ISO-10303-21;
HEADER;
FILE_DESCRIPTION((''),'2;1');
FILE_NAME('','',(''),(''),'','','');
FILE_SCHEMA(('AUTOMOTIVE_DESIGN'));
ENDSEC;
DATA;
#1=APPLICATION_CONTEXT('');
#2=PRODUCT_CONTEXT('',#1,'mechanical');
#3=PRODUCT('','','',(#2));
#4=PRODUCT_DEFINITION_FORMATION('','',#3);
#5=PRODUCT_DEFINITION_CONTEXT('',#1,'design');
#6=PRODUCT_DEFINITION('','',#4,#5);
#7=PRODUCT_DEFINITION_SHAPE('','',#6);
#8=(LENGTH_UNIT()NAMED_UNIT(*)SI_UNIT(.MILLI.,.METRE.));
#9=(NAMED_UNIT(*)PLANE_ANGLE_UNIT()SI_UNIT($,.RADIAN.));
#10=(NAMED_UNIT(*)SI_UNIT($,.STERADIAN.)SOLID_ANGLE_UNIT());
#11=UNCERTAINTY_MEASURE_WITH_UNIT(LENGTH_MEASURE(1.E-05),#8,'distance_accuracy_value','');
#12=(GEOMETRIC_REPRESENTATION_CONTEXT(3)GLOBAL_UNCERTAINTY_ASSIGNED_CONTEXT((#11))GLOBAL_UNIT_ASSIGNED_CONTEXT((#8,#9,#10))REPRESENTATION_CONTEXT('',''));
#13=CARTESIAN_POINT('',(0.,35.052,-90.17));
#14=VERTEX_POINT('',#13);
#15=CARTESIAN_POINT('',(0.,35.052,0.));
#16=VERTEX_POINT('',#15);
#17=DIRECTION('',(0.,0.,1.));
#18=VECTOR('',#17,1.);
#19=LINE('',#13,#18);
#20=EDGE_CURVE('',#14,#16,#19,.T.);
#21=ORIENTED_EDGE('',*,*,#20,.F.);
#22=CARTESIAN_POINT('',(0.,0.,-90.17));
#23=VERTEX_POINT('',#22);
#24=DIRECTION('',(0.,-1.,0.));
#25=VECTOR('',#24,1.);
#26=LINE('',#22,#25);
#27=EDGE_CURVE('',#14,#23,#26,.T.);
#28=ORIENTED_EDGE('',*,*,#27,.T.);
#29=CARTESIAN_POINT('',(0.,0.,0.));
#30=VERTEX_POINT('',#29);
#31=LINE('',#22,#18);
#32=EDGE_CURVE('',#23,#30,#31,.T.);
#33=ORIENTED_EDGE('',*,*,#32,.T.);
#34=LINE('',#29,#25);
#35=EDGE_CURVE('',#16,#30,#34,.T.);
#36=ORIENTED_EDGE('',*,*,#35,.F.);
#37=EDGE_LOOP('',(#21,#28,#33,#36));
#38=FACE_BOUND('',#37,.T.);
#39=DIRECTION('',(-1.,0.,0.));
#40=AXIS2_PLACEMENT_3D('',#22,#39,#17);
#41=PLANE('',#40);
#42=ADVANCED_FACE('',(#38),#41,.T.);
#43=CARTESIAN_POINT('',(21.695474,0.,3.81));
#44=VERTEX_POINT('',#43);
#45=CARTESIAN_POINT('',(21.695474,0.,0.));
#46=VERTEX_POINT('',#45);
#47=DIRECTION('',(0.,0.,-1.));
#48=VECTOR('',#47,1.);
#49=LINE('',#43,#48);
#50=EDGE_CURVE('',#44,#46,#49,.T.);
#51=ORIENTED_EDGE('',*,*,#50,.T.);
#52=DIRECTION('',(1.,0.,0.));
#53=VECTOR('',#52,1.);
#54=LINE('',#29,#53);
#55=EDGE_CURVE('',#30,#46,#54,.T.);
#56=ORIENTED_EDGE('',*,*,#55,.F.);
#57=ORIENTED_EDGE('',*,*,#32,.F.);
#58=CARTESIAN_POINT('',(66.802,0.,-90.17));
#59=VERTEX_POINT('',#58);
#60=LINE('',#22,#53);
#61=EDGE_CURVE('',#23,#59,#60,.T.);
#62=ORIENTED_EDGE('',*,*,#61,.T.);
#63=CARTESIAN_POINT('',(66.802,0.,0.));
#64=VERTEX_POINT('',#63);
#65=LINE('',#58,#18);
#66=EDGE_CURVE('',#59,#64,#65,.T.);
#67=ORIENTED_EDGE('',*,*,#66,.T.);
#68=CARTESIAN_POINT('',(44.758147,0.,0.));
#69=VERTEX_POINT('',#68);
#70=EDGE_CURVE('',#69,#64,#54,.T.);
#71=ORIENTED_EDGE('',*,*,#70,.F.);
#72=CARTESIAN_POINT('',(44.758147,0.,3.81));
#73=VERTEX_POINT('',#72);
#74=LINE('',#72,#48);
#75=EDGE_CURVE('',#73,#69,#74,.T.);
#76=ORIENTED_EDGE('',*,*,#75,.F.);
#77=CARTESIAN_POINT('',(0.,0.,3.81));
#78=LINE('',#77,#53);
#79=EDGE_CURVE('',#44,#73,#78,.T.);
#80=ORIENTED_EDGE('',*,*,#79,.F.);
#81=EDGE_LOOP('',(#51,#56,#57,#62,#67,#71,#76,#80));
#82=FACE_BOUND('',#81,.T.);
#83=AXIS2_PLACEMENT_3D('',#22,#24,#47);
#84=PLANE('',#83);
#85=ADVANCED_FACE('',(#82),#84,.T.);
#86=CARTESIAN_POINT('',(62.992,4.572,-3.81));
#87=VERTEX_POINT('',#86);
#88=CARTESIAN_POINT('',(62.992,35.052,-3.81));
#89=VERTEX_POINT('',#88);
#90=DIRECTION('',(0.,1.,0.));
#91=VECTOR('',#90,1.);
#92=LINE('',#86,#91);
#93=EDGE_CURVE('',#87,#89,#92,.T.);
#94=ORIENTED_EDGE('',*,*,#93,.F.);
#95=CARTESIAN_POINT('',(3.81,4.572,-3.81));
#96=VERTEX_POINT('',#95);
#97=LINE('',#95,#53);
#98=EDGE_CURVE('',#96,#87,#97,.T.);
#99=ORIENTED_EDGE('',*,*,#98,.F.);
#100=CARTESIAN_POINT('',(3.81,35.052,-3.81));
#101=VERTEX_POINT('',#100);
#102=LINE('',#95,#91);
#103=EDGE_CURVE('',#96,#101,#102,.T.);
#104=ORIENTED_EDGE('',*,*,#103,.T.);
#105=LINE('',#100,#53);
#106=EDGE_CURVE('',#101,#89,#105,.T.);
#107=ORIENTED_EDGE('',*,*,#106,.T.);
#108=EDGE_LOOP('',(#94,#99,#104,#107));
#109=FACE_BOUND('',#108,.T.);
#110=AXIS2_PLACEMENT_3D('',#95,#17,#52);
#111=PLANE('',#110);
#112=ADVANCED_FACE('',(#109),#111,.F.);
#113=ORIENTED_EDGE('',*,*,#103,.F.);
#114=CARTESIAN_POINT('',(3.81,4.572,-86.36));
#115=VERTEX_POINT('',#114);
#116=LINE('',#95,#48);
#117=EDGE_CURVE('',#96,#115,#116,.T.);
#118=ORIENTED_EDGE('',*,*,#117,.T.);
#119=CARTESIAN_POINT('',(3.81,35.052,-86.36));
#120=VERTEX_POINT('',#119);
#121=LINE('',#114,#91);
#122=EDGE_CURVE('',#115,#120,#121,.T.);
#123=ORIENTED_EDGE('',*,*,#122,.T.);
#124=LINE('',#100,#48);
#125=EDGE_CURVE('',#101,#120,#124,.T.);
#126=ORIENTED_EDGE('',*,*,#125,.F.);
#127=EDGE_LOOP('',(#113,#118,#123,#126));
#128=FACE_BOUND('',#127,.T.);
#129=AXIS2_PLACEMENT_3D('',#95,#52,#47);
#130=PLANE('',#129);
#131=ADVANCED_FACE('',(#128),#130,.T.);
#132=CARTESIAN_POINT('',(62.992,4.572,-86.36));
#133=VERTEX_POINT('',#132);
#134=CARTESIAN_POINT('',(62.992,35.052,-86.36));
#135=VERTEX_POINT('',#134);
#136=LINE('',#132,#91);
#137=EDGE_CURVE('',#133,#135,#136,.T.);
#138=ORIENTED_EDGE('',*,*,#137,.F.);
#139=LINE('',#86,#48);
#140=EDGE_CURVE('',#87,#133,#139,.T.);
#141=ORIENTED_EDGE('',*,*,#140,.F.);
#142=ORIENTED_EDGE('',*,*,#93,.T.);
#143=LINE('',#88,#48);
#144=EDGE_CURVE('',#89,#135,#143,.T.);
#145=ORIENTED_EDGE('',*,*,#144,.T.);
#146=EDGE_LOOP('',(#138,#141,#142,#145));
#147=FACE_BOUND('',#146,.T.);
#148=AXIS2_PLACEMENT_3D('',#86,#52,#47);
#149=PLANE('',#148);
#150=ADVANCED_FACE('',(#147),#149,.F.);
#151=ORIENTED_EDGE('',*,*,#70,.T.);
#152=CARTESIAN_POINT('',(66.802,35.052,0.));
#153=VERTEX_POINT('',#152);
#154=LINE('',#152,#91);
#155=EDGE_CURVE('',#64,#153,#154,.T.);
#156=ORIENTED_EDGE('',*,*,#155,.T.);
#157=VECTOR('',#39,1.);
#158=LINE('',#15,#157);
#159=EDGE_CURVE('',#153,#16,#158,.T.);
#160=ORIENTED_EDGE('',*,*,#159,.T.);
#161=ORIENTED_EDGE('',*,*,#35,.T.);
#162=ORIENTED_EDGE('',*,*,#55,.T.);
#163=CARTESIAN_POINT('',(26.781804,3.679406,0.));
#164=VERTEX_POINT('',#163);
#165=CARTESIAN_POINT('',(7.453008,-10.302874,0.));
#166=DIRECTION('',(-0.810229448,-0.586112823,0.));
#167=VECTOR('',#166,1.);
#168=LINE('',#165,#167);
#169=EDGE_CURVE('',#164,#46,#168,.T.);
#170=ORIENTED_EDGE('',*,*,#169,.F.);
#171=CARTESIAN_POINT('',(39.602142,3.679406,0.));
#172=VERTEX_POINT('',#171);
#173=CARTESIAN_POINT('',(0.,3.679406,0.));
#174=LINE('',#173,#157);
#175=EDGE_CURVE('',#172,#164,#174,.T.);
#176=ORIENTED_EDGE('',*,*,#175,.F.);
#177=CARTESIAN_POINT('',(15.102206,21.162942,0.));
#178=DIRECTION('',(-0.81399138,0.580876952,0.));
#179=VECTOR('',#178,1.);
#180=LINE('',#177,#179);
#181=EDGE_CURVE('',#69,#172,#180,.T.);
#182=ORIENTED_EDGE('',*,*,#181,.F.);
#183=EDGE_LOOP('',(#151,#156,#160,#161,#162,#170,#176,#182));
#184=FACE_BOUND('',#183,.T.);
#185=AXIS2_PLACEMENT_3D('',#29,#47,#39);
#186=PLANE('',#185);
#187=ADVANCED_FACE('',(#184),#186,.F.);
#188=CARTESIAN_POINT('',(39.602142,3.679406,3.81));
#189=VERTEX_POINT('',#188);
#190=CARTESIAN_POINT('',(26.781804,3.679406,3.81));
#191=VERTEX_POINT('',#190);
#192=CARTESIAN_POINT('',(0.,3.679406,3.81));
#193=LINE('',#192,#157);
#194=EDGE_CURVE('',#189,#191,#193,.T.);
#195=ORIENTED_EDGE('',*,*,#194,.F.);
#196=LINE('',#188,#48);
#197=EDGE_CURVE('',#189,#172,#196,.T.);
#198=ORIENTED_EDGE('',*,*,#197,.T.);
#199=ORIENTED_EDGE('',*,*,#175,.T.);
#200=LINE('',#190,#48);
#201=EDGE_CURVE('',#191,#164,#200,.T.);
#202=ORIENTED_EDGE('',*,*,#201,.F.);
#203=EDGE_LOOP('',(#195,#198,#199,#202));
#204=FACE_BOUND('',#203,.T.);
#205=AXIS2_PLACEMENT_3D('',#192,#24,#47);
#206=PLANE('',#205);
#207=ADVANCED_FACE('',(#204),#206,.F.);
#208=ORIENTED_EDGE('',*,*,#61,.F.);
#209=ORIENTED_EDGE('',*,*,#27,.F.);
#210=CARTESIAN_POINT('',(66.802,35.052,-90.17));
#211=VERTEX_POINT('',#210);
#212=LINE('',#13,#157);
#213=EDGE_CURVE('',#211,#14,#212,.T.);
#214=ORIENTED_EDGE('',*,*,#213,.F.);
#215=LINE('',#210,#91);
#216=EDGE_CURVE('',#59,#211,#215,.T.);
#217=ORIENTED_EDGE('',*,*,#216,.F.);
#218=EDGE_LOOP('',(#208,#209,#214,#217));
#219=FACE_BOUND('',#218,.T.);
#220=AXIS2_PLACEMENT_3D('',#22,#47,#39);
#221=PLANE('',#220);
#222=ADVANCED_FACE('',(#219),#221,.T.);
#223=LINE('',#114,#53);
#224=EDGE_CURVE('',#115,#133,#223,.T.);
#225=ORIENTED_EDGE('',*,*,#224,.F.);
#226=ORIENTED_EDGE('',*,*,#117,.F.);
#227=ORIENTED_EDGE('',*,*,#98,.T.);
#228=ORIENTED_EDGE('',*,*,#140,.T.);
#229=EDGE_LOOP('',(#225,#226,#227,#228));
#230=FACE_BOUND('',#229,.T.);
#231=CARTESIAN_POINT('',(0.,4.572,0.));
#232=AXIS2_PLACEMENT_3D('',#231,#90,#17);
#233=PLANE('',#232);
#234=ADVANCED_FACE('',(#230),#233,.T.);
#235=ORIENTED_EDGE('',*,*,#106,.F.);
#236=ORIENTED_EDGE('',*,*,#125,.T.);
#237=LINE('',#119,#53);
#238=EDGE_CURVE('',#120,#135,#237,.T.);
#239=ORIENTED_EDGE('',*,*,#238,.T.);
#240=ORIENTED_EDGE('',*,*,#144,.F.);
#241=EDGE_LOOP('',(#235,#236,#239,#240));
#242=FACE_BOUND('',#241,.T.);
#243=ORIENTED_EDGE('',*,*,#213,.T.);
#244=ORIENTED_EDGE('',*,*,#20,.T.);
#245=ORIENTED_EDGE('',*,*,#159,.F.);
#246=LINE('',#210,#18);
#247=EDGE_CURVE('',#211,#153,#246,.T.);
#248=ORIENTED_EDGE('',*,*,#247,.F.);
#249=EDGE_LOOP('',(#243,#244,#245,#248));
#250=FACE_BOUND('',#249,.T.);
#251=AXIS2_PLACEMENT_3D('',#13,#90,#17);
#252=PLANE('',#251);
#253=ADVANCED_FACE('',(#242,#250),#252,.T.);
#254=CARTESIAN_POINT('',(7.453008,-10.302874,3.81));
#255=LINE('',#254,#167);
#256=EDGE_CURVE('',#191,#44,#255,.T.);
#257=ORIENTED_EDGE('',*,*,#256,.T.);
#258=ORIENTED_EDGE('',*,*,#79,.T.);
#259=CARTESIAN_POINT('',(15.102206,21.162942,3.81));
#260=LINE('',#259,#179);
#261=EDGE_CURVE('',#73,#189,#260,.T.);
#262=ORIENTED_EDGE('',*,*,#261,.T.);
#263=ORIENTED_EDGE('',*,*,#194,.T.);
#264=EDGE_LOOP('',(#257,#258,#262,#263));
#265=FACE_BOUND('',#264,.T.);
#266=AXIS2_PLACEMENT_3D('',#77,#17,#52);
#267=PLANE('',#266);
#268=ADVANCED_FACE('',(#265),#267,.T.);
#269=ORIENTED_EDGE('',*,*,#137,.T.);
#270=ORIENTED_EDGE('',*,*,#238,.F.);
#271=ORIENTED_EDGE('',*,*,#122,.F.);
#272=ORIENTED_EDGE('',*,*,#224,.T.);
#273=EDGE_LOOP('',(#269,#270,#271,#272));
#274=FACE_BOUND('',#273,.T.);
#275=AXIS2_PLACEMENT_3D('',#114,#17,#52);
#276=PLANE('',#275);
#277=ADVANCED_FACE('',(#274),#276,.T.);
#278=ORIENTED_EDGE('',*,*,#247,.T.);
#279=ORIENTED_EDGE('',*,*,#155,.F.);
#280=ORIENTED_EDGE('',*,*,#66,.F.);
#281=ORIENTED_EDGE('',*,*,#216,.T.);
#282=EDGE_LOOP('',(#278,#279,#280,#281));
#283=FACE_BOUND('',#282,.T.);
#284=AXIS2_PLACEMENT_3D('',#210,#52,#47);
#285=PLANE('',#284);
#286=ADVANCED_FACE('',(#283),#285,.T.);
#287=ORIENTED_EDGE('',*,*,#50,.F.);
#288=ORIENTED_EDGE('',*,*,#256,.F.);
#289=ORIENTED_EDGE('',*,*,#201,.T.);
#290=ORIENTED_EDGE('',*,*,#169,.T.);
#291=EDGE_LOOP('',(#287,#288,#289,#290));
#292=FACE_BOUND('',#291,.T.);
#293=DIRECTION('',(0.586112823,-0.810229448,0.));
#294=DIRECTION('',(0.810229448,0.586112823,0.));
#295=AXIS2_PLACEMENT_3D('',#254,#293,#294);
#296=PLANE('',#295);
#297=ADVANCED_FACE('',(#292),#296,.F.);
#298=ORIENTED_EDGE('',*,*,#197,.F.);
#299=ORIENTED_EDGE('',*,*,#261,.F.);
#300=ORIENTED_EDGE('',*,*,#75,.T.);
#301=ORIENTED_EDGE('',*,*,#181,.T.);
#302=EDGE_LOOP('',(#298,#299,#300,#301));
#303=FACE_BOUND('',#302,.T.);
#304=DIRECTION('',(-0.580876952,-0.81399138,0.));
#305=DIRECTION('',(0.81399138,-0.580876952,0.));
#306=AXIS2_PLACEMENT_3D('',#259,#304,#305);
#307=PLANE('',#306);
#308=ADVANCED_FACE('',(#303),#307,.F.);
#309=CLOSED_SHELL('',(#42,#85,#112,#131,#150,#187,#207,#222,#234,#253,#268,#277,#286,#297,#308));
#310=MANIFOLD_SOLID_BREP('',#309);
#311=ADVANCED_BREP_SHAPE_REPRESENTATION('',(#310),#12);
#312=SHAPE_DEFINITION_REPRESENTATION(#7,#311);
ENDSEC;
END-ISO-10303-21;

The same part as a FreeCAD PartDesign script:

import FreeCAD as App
import Part
import Sketcher
from FreeCAD import Vector
Q = App.Units.Quantity

doc = App.newDocument("Part")
body = doc.addObject("PartDesign::Body", "Body")

sketch1 = body.newObject("Sketcher::SketchObject", "Sketch")
sketch1.AttachmentSupport = (doc.getObject("XY_Plane"), [""])
sketch1.MapMode = "FlatFace"
sketch1.addGeometry(Part.LineSegment(Vector(0, 35.052, 0), Vector(0, 0, 0)), False)
sketch1.addGeometry(Part.LineSegment(Vector(0, 0, 0), Vector(66.802, 0, 0)), False)
sketch1.addGeometry(Part.LineSegment(Vector(66.802, 0, 0), Vector(66.802, 35.052, 0)), False)
sketch1.addGeometry(Part.LineSegment(Vector(66.802, 35.052, 0), Vector(0, 35.052, 0)), False)
sketch1.addConstraint(Sketcher.Constraint("Coincident", 0, 2, 1, 1))
sketch1.addConstraint(Sketcher.Constraint("Coincident", 1, 2, 2, 1))
sketch1.addConstraint(Sketcher.Constraint("Coincident", 2, 2, 3, 1))
sketch1.addConstraint(Sketcher.Constraint("Coincident", 3, 2, 0, 1))
sketch1.addConstraint(Sketcher.Constraint("Vertical", 0))
sketch1.addConstraint(Sketcher.Constraint("Horizontal", 1))
sketch1.addConstraint(Sketcher.Constraint("Vertical", 2))
sketch1.addConstraint(Sketcher.Constraint("Horizontal", 3))
sketch1.addConstraint(Sketcher.Constraint("Coincident", 0, 2, -1, 1))
sketch1.addConstraint(Sketcher.Constraint("DistanceX", 1, 1, 1, 2, Q("2.63 in")))
sketch1.addConstraint(Sketcher.Constraint("DistanceY", 0, 2, 0, 1, Q("1.38 in")))
pad1 = body.newObject("PartDesign::Pad", "Pad")
pad1.Profile = sketch1
pad1.Length = Q("3.55 in")
pad1.Reversed = True

sketch2 = body.newObject("Sketcher::SketchObject", "Sketch001")
sketch2.AttachmentSupport = (doc.getObject("XZ_Plane"), [""])
sketch2.MapMode = "FlatFace"
sketch2.AttachmentOffset = App.Placement(Vector(0, 0, -1.38 * 25.4), App.Rotation())
sketch2.addGeometry(Part.LineSegment(Vector(3.81, -86.36, 0), Vector(3.81, -3.81, 0)), False)
sketch2.addGeometry(Part.LineSegment(Vector(3.81, -3.81, 0), Vector(62.992, -3.81, 0)), False)
sketch2.addGeometry(Part.LineSegment(Vector(62.992, -3.81, 0), Vector(62.992, -86.36, 0)), False)
sketch2.addGeometry(Part.LineSegment(Vector(62.992, -86.36, 0), Vector(3.81, -86.36, 0)), False)
sketch2.addConstraint(Sketcher.Constraint("Coincident", 0, 2, 1, 1))
sketch2.addConstraint(Sketcher.Constraint("Coincident", 1, 2, 2, 1))
sketch2.addConstraint(Sketcher.Constraint("Coincident", 2, 2, 3, 1))
sketch2.addConstraint(Sketcher.Constraint("Coincident", 3, 2, 0, 1))
sketch2.addConstraint(Sketcher.Constraint("Vertical", 0))
sketch2.addConstraint(Sketcher.Constraint("Horizontal", 1))
sketch2.addConstraint(Sketcher.Constraint("Vertical", 2))
sketch2.addConstraint(Sketcher.Constraint("Horizontal", 3))
sketch2.addConstraint(Sketcher.Constraint("DistanceX", 1, 1, 1, 2, Q("2.33 in")))
sketch2.addConstraint(Sketcher.Constraint("DistanceY", 0, 1, 0, 2, Q("3.25 in")))
sketch2.addConstraint(Sketcher.Constraint("DistanceY", 2, 2, -1, 1, Q("3.4 in")))
sketch2.addConstraint(Sketcher.Constraint("DistanceX", -1, 1, 0, 2, Q("0.15 in")))
pocket1 = body.newObject("PartDesign::Pocket", "Pocket")
pocket1.Profile = sketch2
pocket1.Length = Q("1.2 in")
pocket1.Reversed = True

sketch3 = body.newObject("Sketcher::SketchObject", "Sketch002")
sketch3.AttachmentSupport = (doc.getObject("XY_Plane"), [""])
sketch3.MapMode = "FlatFace"
sketch3.addGeometry(Part.LineSegment(Vector(26.781804, 3.679406, 0), Vector(21.695474, 0, 0)), False)
sketch3.addGeometry(Part.LineSegment(Vector(21.695474, 0, 0), Vector(44.758147, 0, 0)), False)
sketch3.addGeometry(Part.LineSegment(Vector(44.758147, 0, 0), Vector(39.602142, 3.679406, 0)), False)
sketch3.addGeometry(Part.LineSegment(Vector(39.602142, 3.679406, 0), Vector(26.781804, 3.679406, 0)), False)
sketch3.addConstraint(Sketcher.Constraint("Coincident", 0, 2, 1, 1))
sketch3.addConstraint(Sketcher.Constraint("Coincident", 1, 2, 2, 1))
sketch3.addConstraint(Sketcher.Constraint("Coincident", 2, 2, 3, 1))
sketch3.addConstraint(Sketcher.Constraint("Coincident", 3, 2, 0, 1))
sketch3.addConstraint(Sketcher.Constraint("Horizontal", 1))
sketch3.addConstraint(Sketcher.Constraint("Horizontal", 3))
sketch3.addConstraint(Sketcher.Constraint("PointOnObject", 0, 2, -1))
sketch3.addConstraint(Sketcher.Constraint("Distance", 0, 6.277641))
sketch3.addConstraint(Sketcher.Constraint("DistanceX", 1, 1, 1, 2, 23.062673))
sketch3.addConstraint(Sketcher.Constraint("DistanceX", 3, 2, 3, 1, 12.820338))
sketch3.addConstraint(Sketcher.Constraint("DistanceX", -1, 1, 2, 2, 39.602142))
sketch3.addConstraint(Sketcher.Constraint("DistanceX", 0, 2, 3, 2, 5.08633))
pad2 = body.newObject("PartDesign::Pad", "Pad001")
pad2.Profile = sketch3
pad2.Length = Q("0.15 in")

doc.recompute()
